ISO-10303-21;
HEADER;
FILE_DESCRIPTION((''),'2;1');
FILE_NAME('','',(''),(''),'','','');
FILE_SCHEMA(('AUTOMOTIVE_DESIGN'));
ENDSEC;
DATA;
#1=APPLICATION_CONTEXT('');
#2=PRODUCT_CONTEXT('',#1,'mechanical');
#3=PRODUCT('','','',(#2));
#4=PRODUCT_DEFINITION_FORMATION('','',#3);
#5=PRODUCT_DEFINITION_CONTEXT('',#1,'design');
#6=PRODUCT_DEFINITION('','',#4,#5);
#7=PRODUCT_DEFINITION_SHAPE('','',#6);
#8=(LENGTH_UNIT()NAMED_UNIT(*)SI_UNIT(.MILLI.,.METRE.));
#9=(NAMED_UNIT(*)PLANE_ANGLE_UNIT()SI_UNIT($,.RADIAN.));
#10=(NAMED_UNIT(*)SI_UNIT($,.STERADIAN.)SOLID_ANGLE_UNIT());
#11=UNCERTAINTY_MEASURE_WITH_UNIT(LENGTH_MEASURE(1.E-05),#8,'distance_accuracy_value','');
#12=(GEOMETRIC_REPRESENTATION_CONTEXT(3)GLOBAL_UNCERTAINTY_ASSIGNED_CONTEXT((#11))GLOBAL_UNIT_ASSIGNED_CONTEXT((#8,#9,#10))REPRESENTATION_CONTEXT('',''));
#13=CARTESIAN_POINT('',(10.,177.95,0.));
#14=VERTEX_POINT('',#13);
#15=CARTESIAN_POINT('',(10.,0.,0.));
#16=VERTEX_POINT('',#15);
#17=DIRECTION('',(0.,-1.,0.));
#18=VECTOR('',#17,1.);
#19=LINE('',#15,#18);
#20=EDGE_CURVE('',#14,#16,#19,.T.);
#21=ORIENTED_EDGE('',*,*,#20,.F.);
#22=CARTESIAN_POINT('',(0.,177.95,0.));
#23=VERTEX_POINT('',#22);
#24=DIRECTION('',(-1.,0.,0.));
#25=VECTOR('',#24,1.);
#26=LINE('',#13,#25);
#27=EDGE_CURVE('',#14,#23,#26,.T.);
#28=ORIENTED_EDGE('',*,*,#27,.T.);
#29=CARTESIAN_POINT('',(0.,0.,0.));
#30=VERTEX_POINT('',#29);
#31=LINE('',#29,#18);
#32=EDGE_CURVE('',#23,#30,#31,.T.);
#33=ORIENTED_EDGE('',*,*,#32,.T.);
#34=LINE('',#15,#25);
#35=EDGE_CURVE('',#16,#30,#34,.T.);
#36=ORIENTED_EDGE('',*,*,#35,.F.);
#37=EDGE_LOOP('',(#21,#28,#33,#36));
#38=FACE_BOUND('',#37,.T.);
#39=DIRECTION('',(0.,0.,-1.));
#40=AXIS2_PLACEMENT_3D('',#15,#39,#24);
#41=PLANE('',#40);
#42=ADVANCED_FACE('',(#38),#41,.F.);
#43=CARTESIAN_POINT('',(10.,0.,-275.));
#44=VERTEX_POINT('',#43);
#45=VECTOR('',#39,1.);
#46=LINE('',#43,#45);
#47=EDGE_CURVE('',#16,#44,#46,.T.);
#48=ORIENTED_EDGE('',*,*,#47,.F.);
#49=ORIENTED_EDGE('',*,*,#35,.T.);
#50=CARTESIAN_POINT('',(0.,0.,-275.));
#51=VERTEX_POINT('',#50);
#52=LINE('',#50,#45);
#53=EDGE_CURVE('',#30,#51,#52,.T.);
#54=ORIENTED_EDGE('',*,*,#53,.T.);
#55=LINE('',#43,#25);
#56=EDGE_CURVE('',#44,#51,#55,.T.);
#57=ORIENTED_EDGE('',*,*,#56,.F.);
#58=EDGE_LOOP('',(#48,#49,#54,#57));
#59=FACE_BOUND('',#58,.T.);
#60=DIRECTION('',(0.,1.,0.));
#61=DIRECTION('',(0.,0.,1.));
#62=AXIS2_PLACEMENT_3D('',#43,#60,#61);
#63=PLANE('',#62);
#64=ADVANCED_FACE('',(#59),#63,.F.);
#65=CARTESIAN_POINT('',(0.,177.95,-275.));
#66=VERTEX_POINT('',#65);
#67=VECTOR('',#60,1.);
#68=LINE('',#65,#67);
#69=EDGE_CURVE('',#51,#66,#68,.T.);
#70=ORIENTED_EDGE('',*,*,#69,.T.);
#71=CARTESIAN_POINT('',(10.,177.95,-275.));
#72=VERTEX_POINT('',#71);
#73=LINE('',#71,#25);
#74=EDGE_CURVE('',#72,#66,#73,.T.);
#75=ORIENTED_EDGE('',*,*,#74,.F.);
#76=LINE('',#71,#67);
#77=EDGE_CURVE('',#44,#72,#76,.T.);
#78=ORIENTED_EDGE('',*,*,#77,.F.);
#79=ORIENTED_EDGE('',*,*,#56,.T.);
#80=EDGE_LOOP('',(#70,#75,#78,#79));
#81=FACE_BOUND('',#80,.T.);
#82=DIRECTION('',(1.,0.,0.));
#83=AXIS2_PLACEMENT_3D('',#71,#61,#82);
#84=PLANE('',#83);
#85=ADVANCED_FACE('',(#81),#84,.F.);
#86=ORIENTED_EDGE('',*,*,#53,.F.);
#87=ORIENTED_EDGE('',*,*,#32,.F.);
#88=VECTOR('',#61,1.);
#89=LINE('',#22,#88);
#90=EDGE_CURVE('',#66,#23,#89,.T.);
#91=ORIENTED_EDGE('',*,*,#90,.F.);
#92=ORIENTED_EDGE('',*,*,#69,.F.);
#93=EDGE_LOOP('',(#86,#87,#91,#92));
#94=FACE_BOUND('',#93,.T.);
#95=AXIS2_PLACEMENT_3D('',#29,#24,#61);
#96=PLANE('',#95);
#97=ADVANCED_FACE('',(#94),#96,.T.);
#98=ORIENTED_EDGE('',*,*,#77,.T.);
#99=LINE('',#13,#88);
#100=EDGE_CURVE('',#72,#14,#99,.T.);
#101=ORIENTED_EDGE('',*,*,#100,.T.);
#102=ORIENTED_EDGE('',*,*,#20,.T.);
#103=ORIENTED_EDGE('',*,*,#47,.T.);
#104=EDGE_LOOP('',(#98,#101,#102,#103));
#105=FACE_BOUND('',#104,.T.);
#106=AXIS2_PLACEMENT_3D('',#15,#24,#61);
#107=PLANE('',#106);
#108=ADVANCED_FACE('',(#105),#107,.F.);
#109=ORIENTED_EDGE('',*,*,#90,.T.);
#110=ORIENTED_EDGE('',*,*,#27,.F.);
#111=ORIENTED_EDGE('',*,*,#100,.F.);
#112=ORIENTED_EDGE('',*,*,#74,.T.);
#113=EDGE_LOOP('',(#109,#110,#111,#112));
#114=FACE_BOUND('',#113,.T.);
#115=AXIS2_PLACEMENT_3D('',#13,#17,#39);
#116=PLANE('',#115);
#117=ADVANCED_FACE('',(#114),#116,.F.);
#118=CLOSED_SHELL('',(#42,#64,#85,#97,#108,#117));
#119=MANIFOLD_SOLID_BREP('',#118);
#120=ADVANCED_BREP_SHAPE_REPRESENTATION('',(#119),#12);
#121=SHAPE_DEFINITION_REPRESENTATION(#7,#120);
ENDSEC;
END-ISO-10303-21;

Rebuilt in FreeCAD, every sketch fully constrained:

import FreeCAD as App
import Part
import Sketcher
from FreeCAD import Vector

doc = App.newDocument("Part")
params = doc.addObject("Spreadsheet::Sheet", "Params")
for row, (alias, value) in enumerate([
    ("sketch1_height", "275 mm"),
    ("sketch1_width", "177.95 mm"),
    ("pad1_length", "10 mm"),
], start=1):
    params.set(f"A{row}", alias)
    params.set(f"B{row}", "=" + value)
    params.setAlias(f"B{row}", alias)

body = doc.addObject("PartDesign::Body", "Body")

sketch1 = doc.addObject("Sketcher::SketchObject", "Sketch")
body.addObject(sketch1)
sketch1.AttachmentSupport = (doc.YZ_Plane, [""])
sketch1.MapMode = "FlatFace"
sketch1.addGeometry([
    Part.LineSegment(Vector(178, 0, 0), Vector(0, 0, 0)),
    Part.LineSegment(Vector(0, 0, 0), Vector(0, -275, 0)),
    Part.LineSegment(Vector(0, -275, 0), Vector(178, -275, 0)),
    Part.LineSegment(Vector(178, -275, 0), Vector(178, 0, 0)),
], False)
sketch1.addConstraint([
    Sketcher.Constraint("Coincident", 0, 2, 1, 1),
    Sketcher.Constraint("Coincident", 1, 2, 2, 1),
    Sketcher.Constraint("Coincident", 2, 2, 3, 1),
    Sketcher.Constraint("Coincident", 3, 2, 0, 1),
    Sketcher.Constraint("Horizontal", 0),
    Sketcher.Constraint("Vertical", 1),
    Sketcher.Constraint("Horizontal", 2),
    Sketcher.Constraint("Vertical", 3),
    Sketcher.Constraint("Coincident", 0, 2, -1, 1),
    Sketcher.Constraint("DistanceY", 1, 2, 1, 1, 275.0),
    Sketcher.Constraint("DistanceX", 0, 2, 0, 1, 177.95),
])
sketch1.setExpression("Constraints[9]", "Params.sketch1_height")
sketch1.setExpression("Constraints[10]", "Params.sketch1_width")
pad1 = doc.addObject("PartDesign::Pad", "Pad")
body.addObject(pad1)
pad1.Profile = sketch1
pad1.setExpression("Length", "Params.pad1_length")

doc.recompute()
